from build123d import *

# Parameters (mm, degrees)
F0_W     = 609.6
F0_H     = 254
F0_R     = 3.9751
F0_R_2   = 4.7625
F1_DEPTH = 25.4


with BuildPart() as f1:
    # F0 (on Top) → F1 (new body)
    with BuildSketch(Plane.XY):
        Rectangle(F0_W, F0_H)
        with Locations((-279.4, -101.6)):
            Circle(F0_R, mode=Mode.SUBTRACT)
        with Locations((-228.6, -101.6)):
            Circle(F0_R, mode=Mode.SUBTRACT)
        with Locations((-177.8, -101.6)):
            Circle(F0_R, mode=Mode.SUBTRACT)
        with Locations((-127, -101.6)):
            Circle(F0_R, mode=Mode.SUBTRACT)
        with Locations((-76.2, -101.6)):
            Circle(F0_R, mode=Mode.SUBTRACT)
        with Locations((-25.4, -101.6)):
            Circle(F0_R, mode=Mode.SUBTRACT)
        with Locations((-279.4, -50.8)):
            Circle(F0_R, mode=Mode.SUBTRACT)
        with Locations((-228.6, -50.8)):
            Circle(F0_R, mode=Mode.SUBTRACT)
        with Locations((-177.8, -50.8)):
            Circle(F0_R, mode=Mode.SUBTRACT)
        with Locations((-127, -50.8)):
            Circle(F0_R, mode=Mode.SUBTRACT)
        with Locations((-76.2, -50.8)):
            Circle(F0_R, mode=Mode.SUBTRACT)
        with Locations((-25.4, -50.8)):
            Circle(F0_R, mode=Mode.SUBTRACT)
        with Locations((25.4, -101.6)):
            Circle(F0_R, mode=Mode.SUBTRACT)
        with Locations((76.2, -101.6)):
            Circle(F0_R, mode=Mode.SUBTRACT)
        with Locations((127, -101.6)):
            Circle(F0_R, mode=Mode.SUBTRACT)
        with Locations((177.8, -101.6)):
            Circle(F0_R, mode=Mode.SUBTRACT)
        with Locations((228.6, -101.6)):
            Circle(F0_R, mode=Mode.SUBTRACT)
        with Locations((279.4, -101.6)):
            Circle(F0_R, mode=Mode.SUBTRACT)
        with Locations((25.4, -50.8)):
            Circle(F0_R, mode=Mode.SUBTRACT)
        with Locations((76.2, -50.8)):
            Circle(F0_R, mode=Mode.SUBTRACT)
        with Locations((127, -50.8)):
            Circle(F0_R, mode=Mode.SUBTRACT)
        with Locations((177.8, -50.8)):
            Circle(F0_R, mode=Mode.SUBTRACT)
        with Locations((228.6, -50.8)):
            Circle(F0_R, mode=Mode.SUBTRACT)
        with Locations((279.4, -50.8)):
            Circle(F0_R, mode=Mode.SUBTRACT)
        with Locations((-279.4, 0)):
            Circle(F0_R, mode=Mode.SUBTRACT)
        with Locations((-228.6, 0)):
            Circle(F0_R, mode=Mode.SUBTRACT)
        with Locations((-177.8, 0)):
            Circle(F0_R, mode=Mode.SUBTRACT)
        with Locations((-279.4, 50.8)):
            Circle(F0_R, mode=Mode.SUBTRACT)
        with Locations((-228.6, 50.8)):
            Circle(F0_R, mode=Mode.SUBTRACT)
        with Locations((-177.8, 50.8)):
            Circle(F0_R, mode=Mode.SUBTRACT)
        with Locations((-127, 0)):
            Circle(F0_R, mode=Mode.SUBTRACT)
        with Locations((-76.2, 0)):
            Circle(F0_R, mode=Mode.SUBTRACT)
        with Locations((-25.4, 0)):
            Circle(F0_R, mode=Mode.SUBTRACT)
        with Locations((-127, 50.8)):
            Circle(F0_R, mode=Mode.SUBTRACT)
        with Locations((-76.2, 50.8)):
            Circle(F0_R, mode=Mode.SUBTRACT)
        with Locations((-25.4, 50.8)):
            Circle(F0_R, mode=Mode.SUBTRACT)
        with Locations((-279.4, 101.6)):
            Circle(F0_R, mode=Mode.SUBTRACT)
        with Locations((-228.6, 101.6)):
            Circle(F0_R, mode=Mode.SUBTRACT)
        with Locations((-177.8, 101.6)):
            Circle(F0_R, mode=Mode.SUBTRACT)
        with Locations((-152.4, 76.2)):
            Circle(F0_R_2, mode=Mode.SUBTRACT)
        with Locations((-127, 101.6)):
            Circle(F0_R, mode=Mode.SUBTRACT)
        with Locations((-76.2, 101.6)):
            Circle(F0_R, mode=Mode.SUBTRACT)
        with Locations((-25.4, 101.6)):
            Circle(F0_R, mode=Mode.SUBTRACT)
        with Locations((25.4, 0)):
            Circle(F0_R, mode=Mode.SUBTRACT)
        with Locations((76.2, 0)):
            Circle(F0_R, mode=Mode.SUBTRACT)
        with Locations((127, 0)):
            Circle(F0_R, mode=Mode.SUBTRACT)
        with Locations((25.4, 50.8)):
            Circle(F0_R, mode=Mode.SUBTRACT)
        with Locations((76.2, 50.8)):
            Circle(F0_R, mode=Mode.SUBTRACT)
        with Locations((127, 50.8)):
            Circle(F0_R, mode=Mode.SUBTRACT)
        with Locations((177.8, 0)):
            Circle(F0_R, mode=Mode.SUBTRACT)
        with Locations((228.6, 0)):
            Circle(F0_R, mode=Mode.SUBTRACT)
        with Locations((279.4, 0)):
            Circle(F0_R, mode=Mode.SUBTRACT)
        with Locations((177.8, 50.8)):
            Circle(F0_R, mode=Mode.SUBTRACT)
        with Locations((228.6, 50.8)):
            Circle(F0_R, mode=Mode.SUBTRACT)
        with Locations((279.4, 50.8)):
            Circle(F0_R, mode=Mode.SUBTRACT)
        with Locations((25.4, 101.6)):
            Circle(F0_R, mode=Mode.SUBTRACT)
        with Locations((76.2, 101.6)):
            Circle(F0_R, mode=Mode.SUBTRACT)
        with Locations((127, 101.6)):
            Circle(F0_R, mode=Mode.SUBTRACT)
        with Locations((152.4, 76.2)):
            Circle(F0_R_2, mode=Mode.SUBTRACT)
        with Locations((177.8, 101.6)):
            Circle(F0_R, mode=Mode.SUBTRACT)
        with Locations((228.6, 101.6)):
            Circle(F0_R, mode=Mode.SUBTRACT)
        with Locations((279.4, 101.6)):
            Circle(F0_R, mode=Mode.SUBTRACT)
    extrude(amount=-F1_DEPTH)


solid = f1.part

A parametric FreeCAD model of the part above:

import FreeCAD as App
import Part
import Sketcher

V = App.Vector
Q = App.Units.Quantity


def add_polygon(sketch, points):
    """Adds a closed chain of lines whose ends are joined by coincident constraints."""
    first, n = sketch.GeometryCount, len(points)
    for a, b in zip(points, points[1:] + points[:1]):
        sketch.addGeometry(Part.LineSegment(App.Vector(*a, 0), App.Vector(*b, 0)), False)
    for i in range(n):
        sketch.addConstraint(Sketcher.Constraint("Coincident", first + i, 2, first + (i + 1) % n, 1))

doc = App.newDocument("Part")
body = doc.addObject("PartDesign::Body", "Body")

# Sketch on XY plane
sketch1 = body.newObject("Sketcher::SketchObject", "Sketch")
sketch1.AttachmentSupport = (doc.getObject("XY_Plane"), [""])
sketch1.MapMode = "FlatFace"
add_polygon(sketch1, [(-304.8, 127), (-304.8, -127), (304.8, -127), (304.8, 127)])  # lines 0-3
sketch1.addGeometry(Part.Circle(V(-279.4, -101.6, 0), V(0, 0, 1), 4), False)  # 4
sketch1.addGeometry(Part.Circle(V(-228.6, -101.6, 0), V(0, 0, 1), 4), False)  # 5
sketch1.addGeometry(Part.Circle(V(-177.8, -101.6, 0), V(0, 0, 1), 4), False)  # 6
sketch1.addGeometry(Part.Circle(V(-127, -101.6, 0), V(0, 0, 1), 4), False)  # 7
sketch1.addGeometry(Part.Circle(V(-76.2, -101.6, 0), V(0, 0, 1), 4), False)  # 8
sketch1.addGeometry(Part.Circle(V(-25.4, -101.6, 0), V(0, 0, 1), 4), False)  # 9
sketch1.addGeometry(Part.Circle(V(-279.4, -50.8, 0), V(0, 0, 1), 4), False)  # 10
sketch1.addGeometry(Part.Circle(V(-228.6, -50.8, 0), V(0, 0, 1), 4), False)  # 11
sketch1.addGeometry(Part.Circle(V(-177.8, -50.8, 0), V(0, 0, 1), 4), False)  # 12
sketch1.addGeometry(Part.Circle(V(-127, -50.8, 0), V(0, 0, 1), 4), False)  # 13
sketch1.addGeometry(Part.Circle(V(-76.2, -50.8, 0), V(0, 0, 1), 4), False)  # 14
sketch1.addGeometry(Part.Circle(V(-25.4, -50.8, 0), V(0, 0, 1), 4), False)  # 15
sketch1.addGeometry(Part.Circle(V(25.4, -101.6, 0), V(0, 0, 1), 4), False)  # 16
sketch1.addGeometry(Part.Circle(V(76.2, -101.6, 0), V(0, 0, 1), 4), False)  # 17
sketch1.addGeometry(Part.Circle(V(127, -101.6, 0), V(0, 0, 1), 4), False)  # 18
sketch1.addGeometry(Part.Circle(V(177.8, -101.6, 0), V(0, 0, 1), 4), False)  # 19
sketch1.addGeometry(Part.Circle(V(228.6, -101.6, 0), V(0, 0, 1), 4), False)  # 20
sketch1.addGeometry(Part.Circle(V(279.4, -101.6, 0), V(0, 0, 1), 4), False)  # 21
sketch1.addGeometry(Part.Circle(V(25.4, -50.8, 0), V(0, 0, 1), 4), False)  # 22
sketch1.addGeometry(Part.Circle(V(76.2, -50.8, 0), V(0, 0, 1), 4), False)  # 23
sketch1.addGeometry(Part.Circle(V(127, -50.8, 0), V(0, 0, 1), 4), False)  # 24
sketch1.addGeometry(Part.Circle(V(177.8, -50.8, 0), V(0, 0, 1), 4), False)  # 25
sketch1.addGeometry(Part.Circle(V(228.6, -50.8, 0), V(0, 0, 1), 4), False)  # 26
sketch1.addGeometry(Part.Circle(V(279.4, -50.8, 0), V(0, 0, 1), 4), False)  # 27
sketch1.addGeometry(Part.Circle(V(-279.4, 0, 0), V(0, 0, 1), 4), False)  # 28
sketch1.addGeometry(Part.Circle(V(-228.6, 0, 0), V(0, 0, 1), 4), False)  # 29
sketch1.addGeometry(Part.Circle(V(-177.8, 0, 0), V(0, 0, 1), 4), False)  # 30
sketch1.addGeometry(Part.Circle(V(-279.4, 50.8, 0), V(0, 0, 1), 4), False)  # 31
sketch1.addGeometry(Part.Circle(V(-228.6, 50.8, 0), V(0, 0, 1), 4), False)  # 32
sketch1.addGeometry(Part.Circle(V(-177.8, 50.8, 0), V(0, 0, 1), 4), False)  # 33
sketch1.addGeometry(Part.Circle(V(-127, 0, 0), V(0, 0, 1), 4), False)  # 34
sketch1.addGeometry(Part.Circle(V(-76.2, 0, 0), V(0, 0, 1), 4), False)  # 35
sketch1.addGeometry(Part.Circle(V(-25.4, 0, 0), V(0, 0, 1), 4), False)  # 36
sketch1.addGeometry(Part.Circle(V(-127, 50.8, 0), V(0, 0, 1), 4), False)  # 37
sketch1.addGeometry(Part.Circle(V(-76.2, 50.8, 0), V(0, 0, 1), 4), False)  # 38
sketch1.addGeometry(Part.Circle(V(-25.4, 50.8, 0), V(0, 0, 1), 4), False)  # 39
sketch1.addGeometry(Part.Circle(V(-152.4, 76.2, 0), V(0, 0, 1), 4.8), False)  # 40
sketch1.addGeometry(Part.Circle(V(-279.4, 101.6, 0), V(0, 0, 1), 4), False)  # 41
sketch1.addGeometry(Part.Circle(V(-228.6, 101.6, 0), V(0, 0, 1), 4), False)  # 42
sketch1.addGeometry(Part.Circle(V(-177.8, 101.6, 0), V(0, 0, 1), 4), False)  # 43
sketch1.addGeometry(Part.Circle(V(-127, 101.6, 0), V(0, 0, 1), 4), False)  # 44
sketch1.addGeometry(Part.Circle(V(-76.2, 101.6, 0), V(0, 0, 1), 4), False)  # 45
sketch1.addGeometry(Part.Circle(V(-25.4, 101.6, 0), V(0, 0, 1), 4), False)  # 46
sketch1.addGeometry(Part.Circle(V(25.4, 0, 0), V(0, 0, 1), 4), False)  # 47
sketch1.addGeometry(Part.Circle(V(76.2, 0, 0), V(0, 0, 1), 4), False)  # 48
sketch1.addGeometry(Part.Circle(V(127, 0, 0), V(0, 0, 1), 4), False)  # 49
sketch1.addGeometry(Part.Circle(V(25.4, 50.8, 0), V(0, 0, 1), 4), False)  # 50
sketch1.addGeometry(Part.Circle(V(76.2, 50.8, 0), V(0, 0, 1), 4), False)  # 51
sketch1.addGeometry(Part.Circle(V(127, 50.8, 0), V(0, 0, 1), 4), False)  # 52
sketch1.addGeometry(Part.Circle(V(177.8, 0, 0), V(0, 0, 1), 4), False)  # 53
sketch1.addGeometry(Part.Circle(V(228.6, 0, 0), V(0, 0, 1), 4), False)  # 54
sketch1.addGeometry(Part.Circle(V(279.4, 0, 0), V(0, 0, 1), 4), False)  # 55
sketch1.addGeometry(Part.Circle(V(177.8, 50.8, 0), V(0, 0, 1), 4), False)  # 56
sketch1.addGeometry(Part.Circle(V(228.6, 50.8, 0), V(0, 0, 1), 4), False)  # 57
sketch1.addGeometry(Part.Circle(V(279.4, 50.8, 0), V(0, 0, 1), 4), False)  # 58
sketch1.addGeometry(Part.Circle(V(25.4, 101.6, 0), V(0, 0, 1), 4), False)  # 59
sketch1.addGeometry(Part.Circle(V(76.2, 101.6, 0), V(0, 0, 1), 4), False)  # 60
sketch1.addGeometry(Part.Circle(V(127, 101.6, 0), V(0, 0, 1), 4), False)  # 61
sketch1.addGeometry(Part.Circle(V(152.4, 76.2, 0), V(0, 0, 1), 4.8), False)  # 62
sketch1.addGeometry(Part.Circle(V(177.8, 101.6, 0), V(0, 0, 1), 4), False)  # 63
sketch1.addGeometry(Part.Circle(V(228.6, 101.6, 0), V(0, 0, 1), 4), False)  # 64
sketch1.addGeometry(Part.Circle(V(279.4, 101.6, 0), V(0, 0, 1), 4), False)  # 65
sketch1.addConstraint([
    Sketcher.Constraint("Vertical", 0),
    Sketcher.Constraint("Horizontal", 1),
    Sketcher.Constraint("Vertical", 2),
    Sketcher.Constraint("Horizontal", 3),
    Sketcher.Constraint("Equal", 4, 5),
    Sketcher.Constraint("Equal", 5, 6),
    Sketcher.Constraint("Equal", 6, 7),
    Sketcher.Constraint("Equal", 7, 8),
    Sketcher.Constraint("Equal", 8, 9),
    Sketcher.Constraint("Equal", 9, 10),
    Sketcher.Constraint("Equal", 10, 11),
    Sketcher.Constraint("Equal", 11, 12),
    Sketcher.Constraint("Equal", 12, 13),
    Sketcher.Constraint("Equal", 13, 14),
    Sketcher.Constraint("Equal", 14, 15),
    Sketcher.Constraint("Equal", 15, 16),
    Sketcher.Constraint("Equal", 16, 17),
    Sketcher.Constraint("Equal", 17, 18),
    Sketcher.Constraint("Equal", 18, 19),
    Sketcher.Constraint("Equal", 19, 20),
    Sketcher.Constraint("Equal", 20, 21),
    Sketcher.Constraint("Equal", 21, 22),
    Sketcher.Constraint("Equal", 22, 23),
    Sketcher.Constraint("Equal", 23, 24),
    Sketcher.Constraint("Equal", 24, 25),
    Sketcher.Constraint("Equal", 25, 26),
    Sketcher.Constraint("Equal", 26, 27),
    Sketcher.Constraint("Equal", 27, 28),
    Sketcher.Constraint("Equal", 28, 29),
    Sketcher.Constraint("Equal", 29, 30),
    Sketcher.Constraint("Equal", 30, 31),
    Sketcher.Constraint("Equal", 31, 32),
    Sketcher.Constraint("Equal", 32, 33),
    Sketcher.Constraint("Equal", 33, 34),
    Sketcher.Constraint("Equal", 34, 35),
    Sketcher.Constraint("Equal", 35, 36),
    Sketcher.Constraint("Equal", 36, 37),
    Sketcher.Constraint("Equal", 37, 38),
    Sketcher.Constraint("Equal", 38, 39),
    Sketcher.Constraint("Equal", 39, 41),
    Sketcher.Constraint("Equal", 41, 42),
    Sketcher.Constraint("Equal", 42, 43),
    Sketcher.Constraint("Equal", 43, 44),
    Sketcher.Constraint("Equal", 44, 45),
    Sketcher.Constraint("Equal", 45, 46),
    Sketcher.Constraint("Equal", 46, 47),
    Sketcher.Constraint("Equal", 47, 48),
    Sketcher.Constraint("Equal", 48, 49),
    Sketcher.Constraint("Equal", 49, 50),
    Sketcher.Constraint("Equal", 50, 51),
    Sketcher.Constraint("Equal", 51, 52),
    Sketcher.Constraint("Equal", 52, 53),
    Sketcher.Constraint("Equal", 53, 54),
    Sketcher.Constraint("Equal", 54, 55),
    Sketcher.Constraint("Equal", 55, 56),
    Sketcher.Constraint("Equal", 56, 57),
    Sketcher.Constraint("Equal", 57, 58),
    Sketcher.Constraint("Equal", 58, 59),
    Sketcher.Constraint("Equal", 59, 60),
    Sketcher.Constraint("Equal", 60, 61),
    Sketcher.Constraint("Equal", 40, 62),
    Sketcher.Constraint("Equal", 61, 63),
    Sketcher.Constraint("Equal", 63, 64),
    Sketcher.Constraint("Equal", 64, 65),
    Sketcher.Constraint("Symmetric", 27, 3, 31, 3, -1, 1),
    Sketcher.Constraint("Symmetric", 26, 3, 32, 3, -1, 1),
    Sketcher.Constraint("Symmetric", 25, 3, 33, 3, -1, 1),
    Sketcher.Constraint("Symmetric", 24, 3, 37, 3, -1, 1),
    Sketcher.Constraint("Symmetric", 23, 3, 38, 3, -1, 1),
    Sketcher.Constraint("Symmetric", 22, 3, 39, 3, -1, 1),
    Sketcher.Constraint("Symmetric", 21, 3, 41, 3, -1, 1),
    Sketcher.Constraint("Symmetric", 20, 3, 42, 3, -1, 1),
    Sketcher.Constraint("Symmetric", 19, 3, 43, 3, -1, 1),
    Sketcher.Constraint("Symmetric", 18, 3, 44, 3, -1, 1),
    Sketcher.Constraint("Symmetric", 17, 3, 45, 3, -1, 1),
    Sketcher.Constraint("Symmetric", 16, 3, 46, 3, -1, 1),
    Sketcher.Constraint("Symmetric", 36, 3, 47, 3, -1, 1),
    Sketcher.Constraint("Symmetric", 35, 3, 48, 3, -1, 1),
    Sketcher.Constraint("Symmetric", 34, 3, 49, 3, -1, 1),
    Sketcher.Constraint("Symmetric", 15, 3, 50, 3, -1, 1),
    Sketcher.Constraint("Symmetric", 14, 3, 51, 3, -1, 1),
    Sketcher.Constraint("Symmetric", 13, 3, 52, 3, -1, 1),
    Sketcher.Constraint("Symmetric", 30, 3, 53, 3, -1, 1),
    Sketcher.Constraint("Symmetric", 29, 3, 54, 3, -1, 1),
    Sketcher.Constraint("Symmetric", 28, 3, 55, 3, -1, 1),
    Sketcher.Constraint("Symmetric", 12, 3, 56, 3, -1, 1),
    Sketcher.Constraint("Symmetric", 11, 3, 57, 3, -1, 1),
    Sketcher.Constraint("Symmetric", 10, 3, 58, 3, -1, 1),
    Sketcher.Constraint("Symmetric", 9, 3, 59, 3, -1, 1),
    Sketcher.Constraint("Symmetric", 8, 3, 60, 3, -1, 1),
    Sketcher.Constraint("Symmetric", 7, 3, 61, 3, -1, 1),
    Sketcher.Constraint("Symmetric", 6, 3, 63, 3, -1, 1),
    Sketcher.Constraint("Symmetric", 5, 3, 64, 3, -1, 1),
    Sketcher.Constraint("Symmetric", 4, 3, 65, 3, -1, 1),
    Sketcher.Constraint("Symmetric", 0, 2, 2, 2, -1, 1),
    Sketcher.Constraint("Symmetric", 9, 3, 16, 3, -2),
    Sketcher.Constraint("Symmetric", 8, 3, 17, 3, -2),
    Sketcher.Constraint("Symmetric", 7, 3, 18, 3, -2),
    Sketcher.Constraint("Symmetric", 6, 3, 19, 3, -2),
    Sketcher.Constraint("Symmetric", 5, 3, 20, 3, -2),
    Sketcher.Constraint("Symmetric", 4, 3, 21, 3, -2),
    Sketcher.Constraint("Symmetric", 15, 3, 22, 3, -2),
    Sketcher.Constraint("Symmetric", 14, 3, 23, 3, -2),
    Sketcher.Constraint("Symmetric", 13, 3, 24, 3, -2),
    Sketcher.Constraint("Symmetric", 12, 3, 25, 3, -2),
    Sketcher.Constraint("Symmetric", 11, 3, 26, 3, -2),
    Sketcher.Constraint("Symmetric", 10, 3, 27, 3, -2),
    Sketcher.Constraint("Symmetric", 40, 3, 62, 3, -2),
    Sketcher.Constraint("PointOnObject", 28, 3, -1),
    Sketcher.Constraint("PointOnObject", 29, 3, -1),
    Sketcher.Constraint("PointOnObject", 30, 3, -1),
    Sketcher.Constraint("PointOnObject", 34, 3, -1),
    Sketcher.Constraint("PointOnObject", 35, 3, -1),
    Sketcher.Constraint("PointOnObject", 36, 3, -1),
    Sketcher.Constraint("Horizontal", 4, 3, 5, 3),
    Sketcher.Constraint("Horizontal", 5, 3, 6, 3),
    Sketcher.Constraint("Horizontal", 6, 3, 7, 3),
    Sketcher.Constraint("Horizontal", 7, 3, 8, 3),
    Sketcher.Constraint("Horizontal", 8, 3, 9, 3),
    Sketcher.Constraint("Horizontal", 10, 3, 11, 3),
    Sketcher.Constraint("Horizontal", 11, 3, 12, 3),
    Sketcher.Constraint("Horizontal", 12, 3, 13, 3),
    Sketcher.Constraint("Horizontal", 13, 3, 14, 3),
    Sketcher.Constraint("Horizontal", 14, 3, 15, 3),
    Sketcher.Constraint("Vertical", 4, 3, 10, 3),
    Sketcher.Constraint("Vertical", 5, 3, 11, 3),
    Sketcher.Constraint("Vertical", 6, 3, 12, 3),
    Sketcher.Constraint("Vertical", 7, 3, 13, 3),
    Sketcher.Constraint("Vertical", 8, 3, 14, 3),
    Sketcher.Constraint("Vertical", 9, 3, 15, 3),
    Sketcher.Constraint("Vertical", 10, 3, 28, 3),
    Sketcher.Constraint("Vertical", 11, 3, 29, 3),
    Sketcher.Constraint("Vertical", 12, 3, 30, 3),
    Sketcher.Constraint("Vertical", 13, 3, 34, 3),
    Sketcher.Constraint("Vertical", 14, 3, 35, 3),
    Sketcher.Constraint("Vertical", 15, 3, 36, 3),
    Sketcher.Constraint("DistanceX", 1, 1, 1, 2, Q("24 in")),
    Sketcher.Constraint("DistanceY", 0, 2, 0, 1, Q("10 in")),
    Sketcher.Constraint("Diameter", 4, Q("0.313 in")),
    Sketcher.Constraint("Diameter", 40, Q("0.375 in")),
    Sketcher.Constraint("DistanceX", 4, 3, -1, 1, Q("11 in")),
    Sketcher.Constraint("DistanceY", 4, 3, -1, 1, Q("4 in")),
    Sketcher.Constraint("DistanceX", 5, 3, -1, 1, Q("9 in")),
    Sketcher.Constraint("DistanceX", 6, 3, -1, 1, Q("7 in")),
    Sketcher.Constraint("DistanceX", 7, 3, -1, 1, Q("5 in")),
    Sketcher.Constraint("DistanceX", 8, 3, -1, 1, Q("3 in")),
    Sketcher.Constraint("DistanceX", 9, 3, -1, 1, Q("1 in")),
    Sketcher.Constraint("DistanceY", 10, 3, -1, 1, Q("2 in")),
    Sketcher.Constraint("DistanceX", 40, 3, -1, 1, Q("6 in")),
    Sketcher.Constraint("DistanceY", -1, 1, 40, 3, Q("3 in")),
])
pad1 = body.newObject("PartDesign::Pad", "Pad")
pad1.Profile = sketch1
pad1.Length = Q("1 in")
pad1.Reversed = True

doc.recompute()
